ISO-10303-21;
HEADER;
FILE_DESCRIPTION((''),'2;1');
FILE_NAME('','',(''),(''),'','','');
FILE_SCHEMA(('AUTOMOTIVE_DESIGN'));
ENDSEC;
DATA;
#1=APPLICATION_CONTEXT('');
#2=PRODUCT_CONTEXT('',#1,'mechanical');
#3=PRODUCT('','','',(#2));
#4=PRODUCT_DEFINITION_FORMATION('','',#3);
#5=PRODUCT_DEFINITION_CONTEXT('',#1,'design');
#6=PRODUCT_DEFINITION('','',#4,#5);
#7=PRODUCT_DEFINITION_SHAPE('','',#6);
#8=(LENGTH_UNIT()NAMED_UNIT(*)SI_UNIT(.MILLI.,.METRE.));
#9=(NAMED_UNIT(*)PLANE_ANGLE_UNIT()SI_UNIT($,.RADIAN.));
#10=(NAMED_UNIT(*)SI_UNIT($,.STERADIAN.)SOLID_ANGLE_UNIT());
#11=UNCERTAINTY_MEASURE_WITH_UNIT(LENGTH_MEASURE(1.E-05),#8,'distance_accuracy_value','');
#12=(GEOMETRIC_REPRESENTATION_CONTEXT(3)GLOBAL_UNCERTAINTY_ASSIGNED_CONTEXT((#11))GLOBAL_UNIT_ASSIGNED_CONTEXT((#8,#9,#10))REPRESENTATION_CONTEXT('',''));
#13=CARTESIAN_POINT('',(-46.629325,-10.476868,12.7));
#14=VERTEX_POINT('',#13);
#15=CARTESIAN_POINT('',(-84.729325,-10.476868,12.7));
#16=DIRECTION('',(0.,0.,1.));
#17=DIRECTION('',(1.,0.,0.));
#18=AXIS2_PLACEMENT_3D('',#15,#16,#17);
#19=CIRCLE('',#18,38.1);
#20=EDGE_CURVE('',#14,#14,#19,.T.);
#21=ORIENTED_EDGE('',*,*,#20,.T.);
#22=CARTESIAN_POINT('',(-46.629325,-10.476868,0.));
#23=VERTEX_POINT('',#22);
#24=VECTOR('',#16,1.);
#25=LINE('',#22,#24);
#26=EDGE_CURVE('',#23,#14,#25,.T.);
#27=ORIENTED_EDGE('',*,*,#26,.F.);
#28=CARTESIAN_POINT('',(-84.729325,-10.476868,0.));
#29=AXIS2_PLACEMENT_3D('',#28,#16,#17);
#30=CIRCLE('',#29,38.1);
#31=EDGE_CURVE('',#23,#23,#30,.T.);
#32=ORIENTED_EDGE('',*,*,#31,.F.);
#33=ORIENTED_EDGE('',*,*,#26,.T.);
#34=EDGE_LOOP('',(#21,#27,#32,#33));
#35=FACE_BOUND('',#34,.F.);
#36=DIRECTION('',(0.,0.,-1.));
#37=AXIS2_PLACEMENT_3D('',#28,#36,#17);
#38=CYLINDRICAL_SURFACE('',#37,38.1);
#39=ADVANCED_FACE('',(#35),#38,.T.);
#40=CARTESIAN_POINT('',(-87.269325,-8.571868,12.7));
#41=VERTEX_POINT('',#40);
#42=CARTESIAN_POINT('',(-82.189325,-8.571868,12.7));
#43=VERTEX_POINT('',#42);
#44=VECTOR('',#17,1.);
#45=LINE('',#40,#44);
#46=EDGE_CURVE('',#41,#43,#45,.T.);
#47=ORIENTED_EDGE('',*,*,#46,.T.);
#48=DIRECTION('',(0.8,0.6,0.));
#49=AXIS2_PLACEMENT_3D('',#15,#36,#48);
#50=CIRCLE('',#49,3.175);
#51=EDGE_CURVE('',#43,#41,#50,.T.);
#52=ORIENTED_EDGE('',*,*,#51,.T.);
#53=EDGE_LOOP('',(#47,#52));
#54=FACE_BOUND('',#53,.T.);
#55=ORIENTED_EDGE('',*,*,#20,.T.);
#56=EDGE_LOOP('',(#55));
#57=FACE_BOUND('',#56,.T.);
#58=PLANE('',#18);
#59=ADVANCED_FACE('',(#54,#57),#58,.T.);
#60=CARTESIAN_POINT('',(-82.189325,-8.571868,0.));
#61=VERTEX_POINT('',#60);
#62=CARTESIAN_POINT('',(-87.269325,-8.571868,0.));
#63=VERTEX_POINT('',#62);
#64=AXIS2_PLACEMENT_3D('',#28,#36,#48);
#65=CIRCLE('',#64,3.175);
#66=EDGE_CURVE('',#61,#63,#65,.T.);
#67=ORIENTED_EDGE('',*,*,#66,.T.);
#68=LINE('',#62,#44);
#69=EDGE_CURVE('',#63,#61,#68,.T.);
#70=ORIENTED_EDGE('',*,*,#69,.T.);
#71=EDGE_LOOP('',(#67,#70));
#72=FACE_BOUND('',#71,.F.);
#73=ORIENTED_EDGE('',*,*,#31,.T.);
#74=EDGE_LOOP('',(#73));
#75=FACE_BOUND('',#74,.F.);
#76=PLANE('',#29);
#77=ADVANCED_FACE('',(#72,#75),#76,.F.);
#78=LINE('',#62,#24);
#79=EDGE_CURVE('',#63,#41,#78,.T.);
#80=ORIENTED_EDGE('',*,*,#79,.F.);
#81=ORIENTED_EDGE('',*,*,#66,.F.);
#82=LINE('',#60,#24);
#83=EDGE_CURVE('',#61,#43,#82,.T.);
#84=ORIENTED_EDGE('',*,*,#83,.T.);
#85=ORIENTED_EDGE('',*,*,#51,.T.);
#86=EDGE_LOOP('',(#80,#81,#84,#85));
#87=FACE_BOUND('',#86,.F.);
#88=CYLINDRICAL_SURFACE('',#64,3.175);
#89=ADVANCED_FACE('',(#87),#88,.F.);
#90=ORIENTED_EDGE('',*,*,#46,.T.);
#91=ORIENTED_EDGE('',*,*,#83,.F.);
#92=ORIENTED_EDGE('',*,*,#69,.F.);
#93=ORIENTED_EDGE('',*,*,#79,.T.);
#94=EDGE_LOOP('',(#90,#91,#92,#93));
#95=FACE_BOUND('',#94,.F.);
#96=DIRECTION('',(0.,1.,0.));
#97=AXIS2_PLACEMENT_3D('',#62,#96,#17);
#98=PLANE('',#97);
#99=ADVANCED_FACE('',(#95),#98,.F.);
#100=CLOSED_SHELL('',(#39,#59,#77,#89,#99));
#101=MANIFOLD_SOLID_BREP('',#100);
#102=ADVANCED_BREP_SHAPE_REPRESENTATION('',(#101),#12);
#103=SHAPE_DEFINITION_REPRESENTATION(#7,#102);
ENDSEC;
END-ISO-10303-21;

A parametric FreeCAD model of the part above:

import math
import FreeCAD as App
import Part
import Sketcher
Q = App.Units.Quantity

doc = App.newDocument("Part")
body = doc.addObject("PartDesign::Body", "Body")

# Sketch on XY plane
sketch1 = doc.addObject("Sketcher::SketchObject", "Sketch")
body.addObject(sketch1)
sketch1.AttachmentSupport = (doc.XY_Plane, [""])
sketch1.MapMode = "FlatFace"
sketch1.addGeometry([
    Part.Circle(App.Vector(-84.7, -10.5, 0), App.Vector(0, 0, 1), 38.1),
    Part.LineSegment(App.Vector(-87.3, -8.6, 0), App.Vector(-82.2, -8.6, 0)),
    Part.ArcOfCircle(Part.Circle(App.Vector(-84.7, -10.5, 0), App.Vector(0, 0, 1), 3.2), math.radians(143), math.radians(397)),
], False)
sketch1.addConstraint([
    Sketcher.Constraint("Coincident", 1, 1, 2, 1),
    Sketcher.Constraint("Coincident", 2, 2, 1, 2),
    Sketcher.Constraint("Horizontal", 1),
    Sketcher.Constraint("Coincident", 2, 3, 0, 3),
    Sketcher.Constraint("Diameter", 0, Q("3 in")),
    Sketcher.Constraint("DistanceX", 1, 1, 1, 2, Q("0.2 in")),
    Sketcher.Constraint("Radius", 2, Q("0.125 in")),
    Sketcher.Constraint("DistanceX", 0, 3, -1, 1, Q("3.3358002 in")),
    Sketcher.Constraint("DistanceY", 2, 2, -1, 1, 8.571868),
])
pad1 = doc.addObject("PartDesign::Pad", "Pad")
body.addObject(pad1)
pad1.Profile = sketch1
pad1.Length = Q("0.5 in")

doc.recompute()
